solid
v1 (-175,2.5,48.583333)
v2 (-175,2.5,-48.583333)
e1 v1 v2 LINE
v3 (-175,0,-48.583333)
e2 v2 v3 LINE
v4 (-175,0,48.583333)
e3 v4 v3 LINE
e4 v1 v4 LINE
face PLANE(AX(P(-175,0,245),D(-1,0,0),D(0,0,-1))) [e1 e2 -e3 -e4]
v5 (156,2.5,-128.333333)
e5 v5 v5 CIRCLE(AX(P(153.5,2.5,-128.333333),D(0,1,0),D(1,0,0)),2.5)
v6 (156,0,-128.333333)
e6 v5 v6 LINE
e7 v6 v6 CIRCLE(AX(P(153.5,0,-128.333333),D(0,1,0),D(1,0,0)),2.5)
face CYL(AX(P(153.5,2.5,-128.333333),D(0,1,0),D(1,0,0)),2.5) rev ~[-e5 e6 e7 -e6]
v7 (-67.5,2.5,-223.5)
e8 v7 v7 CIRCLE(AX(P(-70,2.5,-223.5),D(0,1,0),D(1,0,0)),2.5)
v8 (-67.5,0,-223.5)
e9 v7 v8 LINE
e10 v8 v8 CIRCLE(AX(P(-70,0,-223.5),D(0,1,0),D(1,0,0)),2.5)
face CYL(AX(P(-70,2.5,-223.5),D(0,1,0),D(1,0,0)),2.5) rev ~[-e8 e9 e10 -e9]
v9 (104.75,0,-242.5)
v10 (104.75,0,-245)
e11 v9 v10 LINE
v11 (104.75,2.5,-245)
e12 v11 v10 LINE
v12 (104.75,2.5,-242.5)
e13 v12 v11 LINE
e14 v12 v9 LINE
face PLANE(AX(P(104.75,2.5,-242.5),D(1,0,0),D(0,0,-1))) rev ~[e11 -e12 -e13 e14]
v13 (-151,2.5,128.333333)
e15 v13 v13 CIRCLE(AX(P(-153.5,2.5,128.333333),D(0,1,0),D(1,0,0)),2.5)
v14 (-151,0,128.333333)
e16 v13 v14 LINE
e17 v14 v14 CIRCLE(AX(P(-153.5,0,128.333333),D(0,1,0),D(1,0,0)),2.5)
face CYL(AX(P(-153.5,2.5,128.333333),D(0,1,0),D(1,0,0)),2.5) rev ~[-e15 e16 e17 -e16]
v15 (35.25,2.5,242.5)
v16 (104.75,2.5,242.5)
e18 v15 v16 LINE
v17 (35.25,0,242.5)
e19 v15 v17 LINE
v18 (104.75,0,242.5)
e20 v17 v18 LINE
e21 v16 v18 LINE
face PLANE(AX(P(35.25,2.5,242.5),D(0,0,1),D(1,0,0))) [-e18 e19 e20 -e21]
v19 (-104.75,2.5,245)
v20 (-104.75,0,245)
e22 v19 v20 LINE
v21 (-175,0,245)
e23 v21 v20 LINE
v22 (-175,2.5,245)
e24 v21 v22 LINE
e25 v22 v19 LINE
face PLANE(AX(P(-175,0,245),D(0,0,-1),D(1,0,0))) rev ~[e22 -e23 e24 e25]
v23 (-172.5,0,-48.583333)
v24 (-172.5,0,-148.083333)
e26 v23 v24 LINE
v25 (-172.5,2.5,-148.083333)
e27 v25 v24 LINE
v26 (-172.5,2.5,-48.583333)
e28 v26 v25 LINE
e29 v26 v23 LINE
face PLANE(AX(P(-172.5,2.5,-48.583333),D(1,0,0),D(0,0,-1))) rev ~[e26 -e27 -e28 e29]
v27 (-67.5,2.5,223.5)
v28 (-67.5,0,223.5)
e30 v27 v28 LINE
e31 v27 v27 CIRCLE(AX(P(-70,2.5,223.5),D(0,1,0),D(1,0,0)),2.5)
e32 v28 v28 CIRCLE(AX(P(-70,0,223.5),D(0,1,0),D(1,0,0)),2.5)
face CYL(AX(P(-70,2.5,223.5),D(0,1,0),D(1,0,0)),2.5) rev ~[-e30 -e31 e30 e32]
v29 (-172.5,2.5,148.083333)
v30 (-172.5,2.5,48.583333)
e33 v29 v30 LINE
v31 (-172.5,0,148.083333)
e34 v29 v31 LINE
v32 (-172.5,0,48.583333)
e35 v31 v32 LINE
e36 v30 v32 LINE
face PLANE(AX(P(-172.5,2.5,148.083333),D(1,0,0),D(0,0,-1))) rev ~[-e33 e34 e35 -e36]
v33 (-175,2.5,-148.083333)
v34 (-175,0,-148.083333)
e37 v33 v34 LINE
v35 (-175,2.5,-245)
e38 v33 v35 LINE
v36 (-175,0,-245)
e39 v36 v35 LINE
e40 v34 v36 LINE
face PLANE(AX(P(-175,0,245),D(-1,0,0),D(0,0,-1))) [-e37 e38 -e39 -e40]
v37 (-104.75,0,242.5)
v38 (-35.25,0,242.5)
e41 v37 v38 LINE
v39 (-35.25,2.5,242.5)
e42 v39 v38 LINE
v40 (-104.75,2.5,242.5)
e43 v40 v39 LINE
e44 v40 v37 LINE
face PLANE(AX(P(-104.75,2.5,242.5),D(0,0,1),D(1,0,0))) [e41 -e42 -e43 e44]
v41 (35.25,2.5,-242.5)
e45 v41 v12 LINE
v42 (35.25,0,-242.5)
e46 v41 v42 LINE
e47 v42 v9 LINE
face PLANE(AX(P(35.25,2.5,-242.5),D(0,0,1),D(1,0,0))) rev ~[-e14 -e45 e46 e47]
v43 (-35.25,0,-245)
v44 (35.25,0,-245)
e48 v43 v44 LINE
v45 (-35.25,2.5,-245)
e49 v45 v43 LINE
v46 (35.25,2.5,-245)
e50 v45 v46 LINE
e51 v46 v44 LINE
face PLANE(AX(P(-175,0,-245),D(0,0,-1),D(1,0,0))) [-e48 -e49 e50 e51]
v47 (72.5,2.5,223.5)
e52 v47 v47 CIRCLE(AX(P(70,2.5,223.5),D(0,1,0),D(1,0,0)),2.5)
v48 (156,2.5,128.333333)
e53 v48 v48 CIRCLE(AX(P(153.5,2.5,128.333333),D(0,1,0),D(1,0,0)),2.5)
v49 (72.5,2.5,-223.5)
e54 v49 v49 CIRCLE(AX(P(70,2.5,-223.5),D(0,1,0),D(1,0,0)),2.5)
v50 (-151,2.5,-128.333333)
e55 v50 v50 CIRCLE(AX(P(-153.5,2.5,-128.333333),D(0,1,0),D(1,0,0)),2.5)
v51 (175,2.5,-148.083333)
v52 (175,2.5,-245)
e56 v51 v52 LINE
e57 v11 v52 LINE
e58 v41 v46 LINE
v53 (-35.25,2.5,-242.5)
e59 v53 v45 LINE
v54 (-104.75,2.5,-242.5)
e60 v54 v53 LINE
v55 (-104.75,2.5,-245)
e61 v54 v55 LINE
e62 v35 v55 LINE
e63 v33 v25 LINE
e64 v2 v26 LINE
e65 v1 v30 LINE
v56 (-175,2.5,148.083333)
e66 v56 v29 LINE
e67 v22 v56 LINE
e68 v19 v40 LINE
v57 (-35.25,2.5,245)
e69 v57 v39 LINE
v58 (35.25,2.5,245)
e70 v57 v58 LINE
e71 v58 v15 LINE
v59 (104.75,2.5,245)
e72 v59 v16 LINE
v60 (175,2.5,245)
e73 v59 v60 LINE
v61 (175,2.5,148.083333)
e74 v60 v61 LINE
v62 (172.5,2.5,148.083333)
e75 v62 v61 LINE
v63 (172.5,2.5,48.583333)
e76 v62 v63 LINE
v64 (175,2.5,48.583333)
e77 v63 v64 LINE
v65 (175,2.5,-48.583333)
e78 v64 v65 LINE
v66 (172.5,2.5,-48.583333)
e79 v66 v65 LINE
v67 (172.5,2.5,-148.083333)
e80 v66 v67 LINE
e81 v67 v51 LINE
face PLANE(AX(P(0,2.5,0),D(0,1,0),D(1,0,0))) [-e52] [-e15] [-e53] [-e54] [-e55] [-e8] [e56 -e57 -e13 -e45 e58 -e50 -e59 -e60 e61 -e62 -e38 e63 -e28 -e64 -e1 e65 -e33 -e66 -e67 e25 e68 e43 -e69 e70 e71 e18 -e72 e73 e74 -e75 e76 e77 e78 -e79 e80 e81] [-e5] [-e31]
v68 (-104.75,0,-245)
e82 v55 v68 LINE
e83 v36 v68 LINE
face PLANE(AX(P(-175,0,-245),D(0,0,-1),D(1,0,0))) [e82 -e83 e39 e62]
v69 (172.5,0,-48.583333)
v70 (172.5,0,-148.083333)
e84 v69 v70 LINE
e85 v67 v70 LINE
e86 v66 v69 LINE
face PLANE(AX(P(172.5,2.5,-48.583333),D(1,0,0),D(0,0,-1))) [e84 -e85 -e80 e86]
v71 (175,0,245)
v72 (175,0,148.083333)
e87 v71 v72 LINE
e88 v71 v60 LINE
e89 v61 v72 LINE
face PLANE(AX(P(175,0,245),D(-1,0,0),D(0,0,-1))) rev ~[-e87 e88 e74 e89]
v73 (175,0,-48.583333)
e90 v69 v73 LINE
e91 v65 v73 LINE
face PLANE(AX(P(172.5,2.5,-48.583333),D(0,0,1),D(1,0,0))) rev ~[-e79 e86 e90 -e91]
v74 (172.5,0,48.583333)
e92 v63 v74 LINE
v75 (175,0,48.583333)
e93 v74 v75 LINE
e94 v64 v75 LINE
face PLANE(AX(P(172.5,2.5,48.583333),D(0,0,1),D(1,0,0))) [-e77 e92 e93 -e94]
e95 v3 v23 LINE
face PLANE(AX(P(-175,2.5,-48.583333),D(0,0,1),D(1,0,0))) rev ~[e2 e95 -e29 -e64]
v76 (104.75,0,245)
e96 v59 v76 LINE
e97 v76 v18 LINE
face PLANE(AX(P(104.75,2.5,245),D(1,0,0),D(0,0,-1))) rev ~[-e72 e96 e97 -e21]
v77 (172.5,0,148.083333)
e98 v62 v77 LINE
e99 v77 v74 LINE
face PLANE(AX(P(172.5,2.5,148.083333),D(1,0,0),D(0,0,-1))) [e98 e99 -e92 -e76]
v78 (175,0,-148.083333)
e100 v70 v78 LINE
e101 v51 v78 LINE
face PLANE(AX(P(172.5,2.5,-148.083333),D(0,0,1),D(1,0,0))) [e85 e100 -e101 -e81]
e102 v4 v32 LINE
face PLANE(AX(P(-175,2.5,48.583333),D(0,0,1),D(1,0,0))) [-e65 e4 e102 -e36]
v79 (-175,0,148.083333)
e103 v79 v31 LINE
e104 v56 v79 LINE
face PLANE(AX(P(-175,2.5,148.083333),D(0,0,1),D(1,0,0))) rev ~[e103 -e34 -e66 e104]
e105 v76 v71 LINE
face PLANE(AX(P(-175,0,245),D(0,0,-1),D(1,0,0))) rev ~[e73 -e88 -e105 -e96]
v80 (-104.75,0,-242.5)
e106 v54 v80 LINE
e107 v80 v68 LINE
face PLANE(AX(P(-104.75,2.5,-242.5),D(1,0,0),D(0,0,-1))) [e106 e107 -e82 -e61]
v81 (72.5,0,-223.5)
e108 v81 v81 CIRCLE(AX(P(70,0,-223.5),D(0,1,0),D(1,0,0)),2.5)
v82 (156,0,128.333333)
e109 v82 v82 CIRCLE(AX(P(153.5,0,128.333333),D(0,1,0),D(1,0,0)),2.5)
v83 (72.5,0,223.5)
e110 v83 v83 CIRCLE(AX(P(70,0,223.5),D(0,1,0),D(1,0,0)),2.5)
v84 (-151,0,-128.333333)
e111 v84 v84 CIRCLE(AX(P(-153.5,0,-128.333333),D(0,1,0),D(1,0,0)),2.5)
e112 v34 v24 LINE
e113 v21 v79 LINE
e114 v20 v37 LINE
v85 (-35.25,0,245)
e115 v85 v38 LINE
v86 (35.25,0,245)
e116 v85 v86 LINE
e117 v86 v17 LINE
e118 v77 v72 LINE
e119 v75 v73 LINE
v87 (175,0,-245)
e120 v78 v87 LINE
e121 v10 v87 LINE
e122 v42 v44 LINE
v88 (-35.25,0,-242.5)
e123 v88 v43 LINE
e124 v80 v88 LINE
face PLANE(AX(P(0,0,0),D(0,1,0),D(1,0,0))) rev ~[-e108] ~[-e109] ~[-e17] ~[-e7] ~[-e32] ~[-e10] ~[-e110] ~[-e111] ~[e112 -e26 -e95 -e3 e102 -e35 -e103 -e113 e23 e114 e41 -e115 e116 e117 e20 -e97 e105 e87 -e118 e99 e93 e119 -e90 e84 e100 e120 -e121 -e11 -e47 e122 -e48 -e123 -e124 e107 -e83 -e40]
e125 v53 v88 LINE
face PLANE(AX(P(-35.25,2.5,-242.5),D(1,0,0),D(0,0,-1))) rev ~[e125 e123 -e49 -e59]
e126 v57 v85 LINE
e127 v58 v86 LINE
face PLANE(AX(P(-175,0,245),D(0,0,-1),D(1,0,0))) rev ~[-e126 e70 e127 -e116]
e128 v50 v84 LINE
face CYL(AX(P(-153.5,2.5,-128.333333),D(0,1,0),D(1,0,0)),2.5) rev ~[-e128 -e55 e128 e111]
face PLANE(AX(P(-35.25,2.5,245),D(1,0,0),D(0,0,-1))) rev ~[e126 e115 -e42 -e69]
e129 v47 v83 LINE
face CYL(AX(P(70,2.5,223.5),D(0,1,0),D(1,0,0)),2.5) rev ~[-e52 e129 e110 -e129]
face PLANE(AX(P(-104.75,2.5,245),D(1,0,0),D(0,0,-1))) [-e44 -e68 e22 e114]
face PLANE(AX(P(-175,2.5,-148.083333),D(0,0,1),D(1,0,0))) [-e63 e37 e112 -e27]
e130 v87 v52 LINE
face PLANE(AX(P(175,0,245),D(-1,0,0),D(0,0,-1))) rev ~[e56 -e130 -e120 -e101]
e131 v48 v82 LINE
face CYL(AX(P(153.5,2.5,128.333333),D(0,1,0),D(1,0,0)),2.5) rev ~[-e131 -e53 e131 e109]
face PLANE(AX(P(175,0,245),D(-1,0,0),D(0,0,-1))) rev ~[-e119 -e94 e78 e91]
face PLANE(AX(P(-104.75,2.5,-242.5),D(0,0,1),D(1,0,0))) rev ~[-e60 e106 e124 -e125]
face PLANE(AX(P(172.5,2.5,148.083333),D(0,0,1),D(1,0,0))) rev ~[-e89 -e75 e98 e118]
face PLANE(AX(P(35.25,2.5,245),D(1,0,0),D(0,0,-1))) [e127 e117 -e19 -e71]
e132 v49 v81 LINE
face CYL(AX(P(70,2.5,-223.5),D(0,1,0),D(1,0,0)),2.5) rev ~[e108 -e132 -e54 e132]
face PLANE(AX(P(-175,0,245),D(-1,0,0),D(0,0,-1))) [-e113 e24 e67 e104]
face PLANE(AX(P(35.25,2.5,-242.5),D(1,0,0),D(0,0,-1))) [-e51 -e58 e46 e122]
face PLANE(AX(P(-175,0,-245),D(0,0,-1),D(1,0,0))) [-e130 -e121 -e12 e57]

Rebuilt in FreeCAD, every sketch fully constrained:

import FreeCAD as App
import Part
import Sketcher
Q = App.Units.Quantity

doc = App.newDocument("Part")
body = doc.addObject("PartDesign::Body", "Body")

sketch1 = body.newObject("Sketcher::SketchObject", "Sketch")
sketch1.AttachmentSupport = (doc.getObject("XZ_Plane"), [""])
sketch1.MapMode = "FlatFace"
sketch1.addGeometry(Part.LineSegment(App.Vector(-175, -245, 0), App.Vector(-175, 245, 0)), False)
sketch1.addGeometry(Part.LineSegment(App.Vector(-175, 245, 0), App.Vector(175, 245, 0)), False)
sketch1.addGeometry(Part.LineSegment(App.Vector(175, 245, 0), App.Vector(175, -245, 0)), False)
sketch1.addGeometry(Part.LineSegment(App.Vector(175, -245, 0), App.Vector(-175, -245, 0)), False)
sketch1.addConstraint(Sketcher.Constraint("Coincident", 0, 2, 1, 1))
sketch1.addConstraint(Sketcher.Constraint("Coincident", 1, 2, 2, 1))
sketch1.addConstraint(Sketcher.Constraint("Coincident", 2, 2, 3, 1))
sketch1.addConstraint(Sketcher.Constraint("Coincident", 3, 2, 0, 1))
sketch1.addConstraint(Sketcher.Constraint("Vertical", 0))
sketch1.addConstraint(Sketcher.Constraint("Horizontal", 1))
sketch1.addConstraint(Sketcher.Constraint("Vertical", 2))
sketch1.addConstraint(Sketcher.Constraint("Horizontal", 3))
sketch1.addConstraint(Sketcher.Constraint("Symmetric", 0, 2, 2, 2, -1, 1))
sketch1.addConstraint(Sketcher.Constraint("DistanceX", 1, 1, 1, 2, Q("350 mm")))
sketch1.addConstraint(Sketcher.Constraint("DistanceY", 0, 1, 0, 2, Q("490 mm")))
pad1 = body.newObject("PartDesign::Pad", "Pad")
pad1.Profile = sketch1
pad1.Length = 2.5
pad1.Reversed = True

sketch2 = body.newObject("Sketcher::SketchObject", "Sketch001")
sketch2.AttachmentSupport = (doc.getObject("XZ_Plane"), [""])
sketch2.MapMode = "FlatFace"
sketch2.AttachmentOffset = App.Placement(App.Vector(0, 0, -2.5), App.Rotation())
sketch2.addGeometry(Part.Circle(App.Vector(-70, -223.5, 0), App.Vector(0, 0, 1), 2.5), False)
sketch2.addGeometry(Part.Circle(App.Vector(70, -223.5, 0), App.Vector(0, 0, 1), 2.5), False)
sketch2.addGeometry(Part.Circle(App.Vector(70, 223.5, 0), App.Vector(0, 0, 1), 2.5), False)
sketch2.addGeometry(Part.Circle(App.Vector(-70, 223.5, 0), App.Vector(0, 0, 1), 2.5), False)
sketch2.addGeometry(Part.Circle(App.Vector(-153.5, -128.333333, 0), App.Vector(0, 0, 1), 2.5), False)
sketch2.addGeometry(Part.Circle(App.Vector(-153.5, 128.333333, 0), App.Vector(0, 0, 1), 2.5), False)
sketch2.addGeometry(Part.Circle(App.Vector(153.5, 128.333333, 0), App.Vector(0, 0, 1), 2.5), False)
sketch2.addGeometry(Part.Circle(App.Vector(153.5, -128.333333, 0), App.Vector(0, 0, 1), 2.5), False)
sketch2.addGeometry(Part.LineSegment(App.Vector(-104.75, -245, 0), App.Vector(-104.75, -242.5, 0)), False)
sketch2.addGeometry(Part.LineSegment(App.Vector(-104.75, -242.5, 0), App.Vector(-35.25, -242.5, 0)), False)
sketch2.addGeometry(Part.LineSegment(App.Vector(-35.25, -242.5, 0), App.Vector(-35.25, -245, 0)), False)
sketch2.addGeometry(Part.LineSegment(App.Vector(-35.25, -245, 0), App.Vector(-104.75, -245, 0)), False)
sketch2.addGeometry(Part.LineSegment(App.Vector(-175, -148.083333, 0), App.Vector(-175, -48.583333, 0)), False)
sketch2.addGeometry(Part.LineSegment(App.Vector(-175, -48.583333, 0), App.Vector(-172.5, -48.583333, 0)), False)
sketch2.addGeometry(Part.LineSegment(App.Vector(-172.5, -48.583333, 0), App.Vector(-172.5, -148.083333, 0)), False)
sketch2.addGeometry(Part.LineSegment(App.Vector(-172.5, -148.083333, 0), App.Vector(-175, -148.083333, 0)), False)
sketch2.addGeometry(Part.LineSegment(App.Vector(35.25, -245, 0), App.Vector(35.25, -242.5, 0)), False)
sketch2.addGeometry(Part.LineSegment(App.Vector(35.25, -242.5, 0), App.Vector(104.75, -242.5, 0)), False)
sketch2.addGeometry(Part.LineSegment(App.Vector(104.75, -242.5, 0), App.Vector(104.75, -245, 0)), False)
sketch2.addGeometry(Part.LineSegment(App.Vector(104.75, -245, 0), App.Vector(35.25, -245, 0)), False)
sketch2.addGeometry(Part.LineSegment(App.Vector(-175, 48.583333, 0), App.Vector(-175, 148.083333, 0)), False)
sketch2.addGeometry(Part.LineSegment(App.Vector(-175, 148.083333, 0), App.Vector(-172.5, 148.083333, 0)), False)
sketch2.addGeometry(Part.LineSegment(App.Vector(-172.5, 148.083333, 0), App.Vector(-172.5, 48.583333, 0)), False)
sketch2.addGeometry(Part.LineSegment(App.Vector(-172.5, 48.583333, 0), App.Vector(-175, 48.583333, 0)), False)
sketch2.addGeometry(Part.LineSegment(App.Vector(172.5, 48.583333, 0), App.Vector(172.5, 148.083333, 0)), False)
sketch2.addGeometry(Part.LineSegment(App.Vector(172.5, 148.083333, 0), App.Vector(175, 148.083333, 0)), False)
sketch2.addGeometry(Part.LineSegment(App.Vector(175, 148.083333, 0), App.Vector(175, 48.583333, 0)), False)
sketch2.addGeometry(Part.LineSegment(App.Vector(175, 48.583333, 0), App.Vector(172.5, 48.583333, 0)), False)
sketch2.addGeometry(Part.LineSegment(App.Vector(172.5, -148.083333, 0), App.Vector(172.5, -48.583333, 0)), False)
sketch2.addGeometry(Part.LineSegment(App.Vector(172.5, -48.583333, 0), App.Vector(175, -48.583333, 0)), False)
sketch2.addGeometry(Part.LineSegment(App.Vector(175, -48.583333, 0), App.Vector(175, -148.083333, 0)), False)
sketch2.addGeometry(Part.LineSegment(App.Vector(175, -148.083333, 0), App.Vector(172.5, -148.083333, 0)), False)
sketch2.addGeometry(Part.LineSegment(App.Vector(35.25, 242.5, 0), App.Vector(35.25, 245, 0)), False)
sketch2.addGeometry(Part.LineSegment(App.Vector(35.25, 245, 0), App.Vector(104.75, 245, 0)), False)
sketch2.addGeometry(Part.LineSegment(App.Vector(104.75, 245, 0), App.Vector(104.75, 242.5, 0)), False)
sketch2.addGeometry(Part.LineSegment(App.Vector(104.75, 242.5, 0), App.Vector(35.25, 242.5, 0)), False)
sketch2.addGeometry(Part.LineSegment(App.Vector(-104.75, 242.5, 0), App.Vector(-104.75, 245, 0)), False)
sketch2.addGeometry(Part.LineSegment(App.Vector(-104.75, 245, 0), App.Vector(-35.25, 245, 0)), False)
sketch2.addGeometry(Part.LineSegment(App.Vector(-35.25, 245, 0), App.Vector(-35.25, 242.5, 0)), False)
sketch2.addGeometry(Part.LineSegment(App.Vector(-35.25, 242.5, 0), App.Vector(-104.75, 242.5, 0)), False)
sketch2.addConstraint(Sketcher.Constraint("Coincident", 8, 2, 9, 1))
sketch2.addConstraint(Sketcher.Constraint("Coincident", 9, 2, 10, 1))
sketch2.addConstraint(Sketcher.Constraint("Coincident", 10, 2, 11, 1))
sketch2.addConstraint(Sketcher.Constraint("Coincident", 11, 2, 8, 1))
sketch2.addConstraint(Sketcher.Constraint("Coincident", 12, 2, 13, 1))
sketch2.addConstraint(Sketcher.Constraint("Coincident", 13, 2, 14, 1))
sketch2.addConstraint(Sketcher.Constraint("Coincident", 14, 2, 15, 1))
sketch2.addConstraint(Sketcher.Constraint("Coincident", 15, 2, 12, 1))
sketch2.addConstraint(Sketcher.Constraint("Coincident", 16, 2, 17, 1))
sketch2.addConstraint(Sketcher.Constraint("Coincident", 17, 2, 18, 1))
sketch2.addConstraint(Sketcher.Constraint("Coincident", 18, 2, 19, 1))
sketch2.addConstraint(Sketcher.Constraint("Coincident", 19, 2, 16, 1))
sketch2.addConstraint(Sketcher.Constraint("Coincident", 20, 2, 21, 1))
sketch2.addConstraint(Sketcher.Constraint("Coincident", 21, 2, 22, 1))
sketch2.addConstraint(Sketcher.Constraint("Coincident", 22, 2, 23, 1))
sketch2.addConstraint(Sketcher.Constraint("Coincident", 23, 2, 20, 1))
sketch2.addConstraint(Sketcher.Constraint("Coincident", 24, 2, 25, 1))
sketch2.addConstraint(Sketcher.Constraint("Coincident", 25, 2, 26, 1))
sketch2.addConstraint(Sketcher.Constraint("Coincident", 26, 2, 27, 1))
sketch2.addConstraint(Sketcher.Constraint("Coincident", 27, 2, 24, 1))
sketch2.addConstraint(Sketcher.Constraint("Coincident", 28, 2, 29, 1))
sketch2.addConstraint(Sketcher.Constraint("Coincident", 29, 2, 30, 1))
sketch2.addConstraint(Sketcher.Constraint("Coincident", 30, 2, 31, 1))
sketch2.addConstraint(Sketcher.Constraint("Coincident", 31, 2, 28, 1))
sketch2.addConstraint(Sketcher.Constraint("Coincident", 32, 2, 33, 1))
sketch2.addConstraint(Sketcher.Constraint("Coincident", 33, 2, 34, 1))
sketch2.addConstraint(Sketcher.Constraint("Coincident", 34, 2, 35, 1))
sketch2.addConstraint(Sketcher.Constraint("Coincident", 35, 2, 32, 1))
sketch2.addConstraint(Sketcher.Constraint("Coincident", 36, 2, 37, 1))
sketch2.addConstraint(Sketcher.Constraint("Coincident", 37, 2, 38, 1))
sketch2.addConstraint(Sketcher.Constraint("Coincident", 38, 2, 39, 1))
sketch2.addConstraint(Sketcher.Constraint("Coincident", 39, 2, 36, 1))
sketch2.addConstraint(Sketcher.Constraint("Vertical", 8))
sketch2.addConstraint(Sketcher.Constraint("Horizontal", 9))
sketch2.addConstraint(Sketcher.Constraint("Vertical", 10))
sketch2.addConstraint(Sketcher.Constraint("Horizontal", 11))
sketch2.addConstraint(Sketcher.Constraint("Vertical", 12))
sketch2.addConstraint(Sketcher.Constraint("Horizontal", 13))
sketch2.addConstraint(Sketcher.Constraint("Vertical", 14))
sketch2.addConstraint(Sketcher.Constraint("Horizontal", 15))
sketch2.addConstraint(Sketcher.Constraint("Vertical", 16))
sketch2.addConstraint(Sketcher.Constraint("Horizontal", 17))
sketch2.addConstraint(Sketcher.Constraint("Vertical", 18))
sketch2.addConstraint(Sketcher.Constraint("Horizontal", 19))
sketch2.addConstraint(Sketcher.Constraint("Vertical", 20))
sketch2.addConstraint(Sketcher.Constraint("Horizontal", 21))
sketch2.addConstraint(Sketcher.Constraint("Vertical", 22))
sketch2.addConstraint(Sketcher.Constraint("Horizontal", 23))
sketch2.addConstraint(Sketcher.Constraint("Vertical", 24))
sketch2.addConstraint(Sketcher.Constraint("Horizontal", 25))
sketch2.addConstraint(Sketcher.Constraint("Vertical", 26))
sketch2.addConstraint(Sketcher.Constraint("Horizontal", 27))
sketch2.addConstraint(Sketcher.Constraint("Vertical", 28))
sketch2.addConstraint(Sketcher.Constraint("Horizontal", 29))
sketch2.addConstraint(Sketcher.Constraint("Vertical", 30))
sketch2.addConstraint(Sketcher.Constraint("Horizontal", 31))
sketch2.addConstraint(Sketcher.Constraint("Vertical", 32))
sketch2.addConstraint(Sketcher.Constraint("Horizontal", 33))
sketch2.addConstraint(Sketcher.Constraint("Vertical", 34))
sketch2.addConstraint(Sketcher.Constraint("Horizontal", 35))
sketch2.addConstraint(Sketcher.Constraint("Vertical", 36))
sketch2.addConstraint(Sketcher.Constraint("Horizontal", 37))
sketch2.addConstraint(Sketcher.Constraint("Vertical", 38))
sketch2.addConstraint(Sketcher.Constraint("Horizontal", 39))
sketch2.addConstraint(Sketcher.Constraint("Equal", 0, 1))
sketch2.addConstraint(Sketcher.Constraint("Equal", 1, 2))
sketch2.addConstraint(Sketcher.Constraint("Equal", 2, 3))
sketch2.addConstraint(Sketcher.Constraint("Equal", 3, 4))
sketch2.addConstraint(Sketcher.Constraint("Equal", 4, 5))
sketch2.addConstraint(Sketcher.Constraint("Equal", 5, 6))
sketch2.addConstraint(Sketcher.Constraint("Equal", 6, 7))
sketch2.addConstraint(Sketcher.Constraint("Symmetric", 0, 3, 2, 3, -1, 1))
sketch2.addConstraint(Sketcher.Constraint("Symmetric", 1, 3, 3, 3, -1, 1))
sketch2.addConstraint(Sketcher.Constraint("Symmetric", 4, 3, 6, 3, -1, 1))
sketch2.addConstraint(Sketcher.Constraint("Symmetric", 5, 3, 7, 3, -1, 1))
sketch2.addConstraint(Sketcher.Constraint("Symmetric", 14, 2, 24, 2, -1, 1))
sketch2.addConstraint(Sketcher.Constraint("Symmetric", 12, 2, 26, 2, -1, 1))
sketch2.addConstraint(Sketcher.Constraint("Symmetric", 22, 2, 28, 2, -1, 1))
sketch2.addConstraint(Sketcher.Constraint("Symmetric", 20, 2, 30, 2, -1, 1))
sketch2.addConstraint(Sketcher.Constraint("Symmetric", 10, 2, 32, 2, -1, 1))
sketch2.addConstraint(Sketcher.Constraint("Symmetric", 8, 2, 34, 2, -1, 1))
sketch2.addConstraint(Sketcher.Constraint("Symmetric", 18, 2, 36, 2, -1, 1))
sketch2.addConstraint(Sketcher.Constraint("Symmetric", 16, 2, 38, 2, -1, 1))
sketch2.addConstraint(Sketcher.Constraint("Symmetric", 0, 3, 1, 3, -2))
sketch2.addConstraint(Sketcher.Constraint("Symmetric", 5, 3, 6, 3, -2))
sketch2.addConstraint(Sketcher.Constraint("Symmetric", 9, 2, 16, 2, -2))
sketch2.addConstraint(Sketcher.Constraint("Symmetric", 11, 2, 18, 2, -2))
sketch2.addConstraint(Sketcher.Constraint("Symmetric", 21, 2, 24, 2, -2))
sketch2.addConstraint(Sketcher.Constraint("Symmetric", 23, 2, 26, 2, -2))
sketch2.addConstraint(Sketcher.Constraint("Equal", 31, 8))
sketch2.addConstraint(Sketcher.Constraint("Diameter", 0, Q("5 mm")))
sketch2.addConstraint(Sketcher.Constraint("DistanceX", 9, 1, 9, 2, Q("69.5 mm")))
sketch2.addConstraint(Sketcher.Constraint("DistanceX", 13, 1, 13, 2, Q("2.5 mm")))
sketch2.addConstraint(Sketcher.Constraint("DistanceY", 12, 1, 12, 2, Q("99.5 mm")))
sketch2.addConstraint(Sketcher.Constraint("DistanceX", 0, 3, -1, 1, Q("70 mm")))
sketch2.addConstraint(Sketcher.Constraint("DistanceY", 10, 2, -1, 1, Q("245 mm")))
sketch2.addConstraint(Sketcher.Constraint("DistanceX", 12, 2, -1, 1, Q("175 mm")))
sketch2.addConstraint(Sketcher.Constraint("DistanceY", 1, 3, 2, 3, Q("447 mm")))
sketch2.addConstraint(Sketcher.Constraint("DistanceX", 5, 3, 6, 3, Q("307 mm")))
sketch2.addConstraint(Sketcher.Constraint("DistanceX", 8, 2, 16, 2, Q("140 mm")))
sketch2.addConstraint(Sketcher.Constraint("DistanceY", 4, 3, 12, 2, Q("79.75 mm")))
sketch2.addConstraint(Sketcher.Constraint("DistanceY", 4, 3, -1, 1, Q("128.333333 mm")))
pocket1 = body.newObject("PartDesign::Pocket", "Pocket")
pocket1.Profile = sketch2
pocket1.Length = 2.5
pocket1.Reversed = True

doc.recompute()
